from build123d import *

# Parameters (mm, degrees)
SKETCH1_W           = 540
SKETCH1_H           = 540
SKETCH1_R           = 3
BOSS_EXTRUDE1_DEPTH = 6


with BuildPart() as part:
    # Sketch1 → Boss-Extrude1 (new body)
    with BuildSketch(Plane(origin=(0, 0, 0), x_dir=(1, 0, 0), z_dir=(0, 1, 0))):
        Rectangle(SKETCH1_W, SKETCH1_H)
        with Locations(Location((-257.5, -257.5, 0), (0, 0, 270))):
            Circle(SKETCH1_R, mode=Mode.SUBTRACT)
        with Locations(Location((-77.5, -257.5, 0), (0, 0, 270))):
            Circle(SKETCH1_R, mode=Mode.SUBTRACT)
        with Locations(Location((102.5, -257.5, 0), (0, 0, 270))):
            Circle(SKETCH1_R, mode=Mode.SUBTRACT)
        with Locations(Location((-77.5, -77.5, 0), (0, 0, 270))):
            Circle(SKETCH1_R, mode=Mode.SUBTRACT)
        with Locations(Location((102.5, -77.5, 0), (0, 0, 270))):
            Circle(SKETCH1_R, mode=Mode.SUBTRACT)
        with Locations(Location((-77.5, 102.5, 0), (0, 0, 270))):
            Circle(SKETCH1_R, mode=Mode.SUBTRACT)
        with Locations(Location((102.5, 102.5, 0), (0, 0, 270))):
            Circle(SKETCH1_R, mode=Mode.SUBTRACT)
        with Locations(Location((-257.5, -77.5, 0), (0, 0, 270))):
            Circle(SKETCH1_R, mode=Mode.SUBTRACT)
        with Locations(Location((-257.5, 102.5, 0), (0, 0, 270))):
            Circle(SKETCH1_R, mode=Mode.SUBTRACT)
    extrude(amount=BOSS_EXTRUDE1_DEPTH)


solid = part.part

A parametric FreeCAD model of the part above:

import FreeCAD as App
import Part
import Sketcher
Q = App.Units.Quantity

doc = App.newDocument("Part")
body = doc.addObject("PartDesign::Body", "Body")

sketch1 = body.newObject("Sketcher::SketchObject", "Sketch")
sketch1.AttachmentSupport = (doc.getObject("XZ_Plane"), [""])
sketch1.MapMode = "FlatFace"
sketch1.addGeometry([
    Part.LineSegment(App.Vector(-270, -270, 0), App.Vector(-270, 270, 0)),
    Part.LineSegment(App.Vector(-270, 270, 0), App.Vector(270, 270, 0)),
    Part.LineSegment(App.Vector(270, 270, 0), App.Vector(270, -270, 0)),
    Part.LineSegment(App.Vector(270, -270, 0), App.Vector(-270, -270, 0)),
    Part.Circle(App.Vector(-257.5, 257.5, 0), App.Vector(0, 0, 1), 3),
    Part.Circle(App.Vector(-77.5, 257.5, 0), App.Vector(0, 0, 1), 3),
    Part.Circle(App.Vector(102.5, 257.5, 0), App.Vector(0, 0, 1), 3),
    Part.Circle(App.Vector(-257.5, 77.5, 0), App.Vector(0, 0, 1), 3),
    Part.Circle(App.Vector(-257.5, -102.5, 0), App.Vector(0, 0, 1), 3),
    Part.Circle(App.Vector(-77.5, 77.5, 0), App.Vector(0, 0, 1), 3),
    Part.Circle(App.Vector(102.5, 77.5, 0), App.Vector(0, 0, 1), 3),
    Part.Circle(App.Vector(-77.5, -102.5, 0), App.Vector(0, 0, 1), 3),
    Part.Circle(App.Vector(102.5, -102.5, 0), App.Vector(0, 0, 1), 3),
], False)
sketch1.addConstraint([
    Sketcher.Constraint("Coincident", 0, 2, 1, 1),
    Sketcher.Constraint("Coincident", 1, 2, 2, 1),
    Sketcher.Constraint("Coincident", 2, 2, 3, 1),
    Sketcher.Constraint("Coincident", 3, 2, 0, 1),
    Sketcher.Constraint("Vertical", 0),
    Sketcher.Constraint("Horizontal", 1),
    Sketcher.Constraint("Vertical", 2),
    Sketcher.Constraint("Horizontal", 3),
    Sketcher.Constraint("Equal", 4, 5),
    Sketcher.Constraint("Equal", 5, 6),
    Sketcher.Constraint("Equal", 6, 7),
    Sketcher.Constraint("Equal", 7, 8),
    Sketcher.Constraint("Equal", 8, 9),
    Sketcher.Constraint("Equal", 9, 10),
    Sketcher.Constraint("Equal", 10, 11),
    Sketcher.Constraint("Equal", 11, 12),
    Sketcher.Constraint("Symmetric", 0, 2, 2, 2, -1, 1),
    Sketcher.Constraint("Horizontal", 4, 3, 5, 3),
    Sketcher.Constraint("Horizontal", 5, 3, 6, 3),
    Sketcher.Constraint("Horizontal", 7, 3, 9, 3),
    Sketcher.Constraint("Horizontal", 9, 3, 10, 3),
    Sketcher.Constraint("Horizontal", 8, 3, 11, 3),
    Sketcher.Constraint("Horizontal", 11, 3, 12, 3),
    Sketcher.Constraint("Vertical", 4, 3, 7, 3),
    Sketcher.Constraint("Vertical", 7, 3, 8, 3),
    Sketcher.Constraint("Vertical", 5, 3, 9, 3),
    Sketcher.Constraint("Vertical", 6, 3, 10, 3),
    Sketcher.Constraint("Vertical", 9, 3, 11, 3),
    Sketcher.Constraint("Vertical", 10, 3, 12, 3),
    Sketcher.Constraint("Equal", 3, 0),
    Sketcher.Constraint("Diameter", 4, Q("6 mm")),
    Sketcher.Constraint("DistanceX", 1, 1, 1, 2, Q("540 mm")),
    Sketcher.Constraint("DistanceX", 4, 3, 5, 3, Q("180 mm")),
    Sketcher.Constraint("DistanceX", 5, 3, 6, 3, Q("180 mm")),
    Sketcher.Constraint("DistanceY", 7, 3, 4, 3, Q("180 mm")),
    Sketcher.Constraint("DistanceY", 8, 3, 7, 3, Q("180 mm")),
    Sketcher.Constraint("DistanceX", 4, 3, -1, 1, Q("257.5 mm")),
    Sketcher.Constraint("DistanceY", -1, 1, 4, 3, Q("257.5 mm")),
])
pad1 = body.newObject("PartDesign::Pad", "Pad")
pad1.Profile = sketch1
pad1.Length = 6
pad1.Reversed = True

doc.recompute()
